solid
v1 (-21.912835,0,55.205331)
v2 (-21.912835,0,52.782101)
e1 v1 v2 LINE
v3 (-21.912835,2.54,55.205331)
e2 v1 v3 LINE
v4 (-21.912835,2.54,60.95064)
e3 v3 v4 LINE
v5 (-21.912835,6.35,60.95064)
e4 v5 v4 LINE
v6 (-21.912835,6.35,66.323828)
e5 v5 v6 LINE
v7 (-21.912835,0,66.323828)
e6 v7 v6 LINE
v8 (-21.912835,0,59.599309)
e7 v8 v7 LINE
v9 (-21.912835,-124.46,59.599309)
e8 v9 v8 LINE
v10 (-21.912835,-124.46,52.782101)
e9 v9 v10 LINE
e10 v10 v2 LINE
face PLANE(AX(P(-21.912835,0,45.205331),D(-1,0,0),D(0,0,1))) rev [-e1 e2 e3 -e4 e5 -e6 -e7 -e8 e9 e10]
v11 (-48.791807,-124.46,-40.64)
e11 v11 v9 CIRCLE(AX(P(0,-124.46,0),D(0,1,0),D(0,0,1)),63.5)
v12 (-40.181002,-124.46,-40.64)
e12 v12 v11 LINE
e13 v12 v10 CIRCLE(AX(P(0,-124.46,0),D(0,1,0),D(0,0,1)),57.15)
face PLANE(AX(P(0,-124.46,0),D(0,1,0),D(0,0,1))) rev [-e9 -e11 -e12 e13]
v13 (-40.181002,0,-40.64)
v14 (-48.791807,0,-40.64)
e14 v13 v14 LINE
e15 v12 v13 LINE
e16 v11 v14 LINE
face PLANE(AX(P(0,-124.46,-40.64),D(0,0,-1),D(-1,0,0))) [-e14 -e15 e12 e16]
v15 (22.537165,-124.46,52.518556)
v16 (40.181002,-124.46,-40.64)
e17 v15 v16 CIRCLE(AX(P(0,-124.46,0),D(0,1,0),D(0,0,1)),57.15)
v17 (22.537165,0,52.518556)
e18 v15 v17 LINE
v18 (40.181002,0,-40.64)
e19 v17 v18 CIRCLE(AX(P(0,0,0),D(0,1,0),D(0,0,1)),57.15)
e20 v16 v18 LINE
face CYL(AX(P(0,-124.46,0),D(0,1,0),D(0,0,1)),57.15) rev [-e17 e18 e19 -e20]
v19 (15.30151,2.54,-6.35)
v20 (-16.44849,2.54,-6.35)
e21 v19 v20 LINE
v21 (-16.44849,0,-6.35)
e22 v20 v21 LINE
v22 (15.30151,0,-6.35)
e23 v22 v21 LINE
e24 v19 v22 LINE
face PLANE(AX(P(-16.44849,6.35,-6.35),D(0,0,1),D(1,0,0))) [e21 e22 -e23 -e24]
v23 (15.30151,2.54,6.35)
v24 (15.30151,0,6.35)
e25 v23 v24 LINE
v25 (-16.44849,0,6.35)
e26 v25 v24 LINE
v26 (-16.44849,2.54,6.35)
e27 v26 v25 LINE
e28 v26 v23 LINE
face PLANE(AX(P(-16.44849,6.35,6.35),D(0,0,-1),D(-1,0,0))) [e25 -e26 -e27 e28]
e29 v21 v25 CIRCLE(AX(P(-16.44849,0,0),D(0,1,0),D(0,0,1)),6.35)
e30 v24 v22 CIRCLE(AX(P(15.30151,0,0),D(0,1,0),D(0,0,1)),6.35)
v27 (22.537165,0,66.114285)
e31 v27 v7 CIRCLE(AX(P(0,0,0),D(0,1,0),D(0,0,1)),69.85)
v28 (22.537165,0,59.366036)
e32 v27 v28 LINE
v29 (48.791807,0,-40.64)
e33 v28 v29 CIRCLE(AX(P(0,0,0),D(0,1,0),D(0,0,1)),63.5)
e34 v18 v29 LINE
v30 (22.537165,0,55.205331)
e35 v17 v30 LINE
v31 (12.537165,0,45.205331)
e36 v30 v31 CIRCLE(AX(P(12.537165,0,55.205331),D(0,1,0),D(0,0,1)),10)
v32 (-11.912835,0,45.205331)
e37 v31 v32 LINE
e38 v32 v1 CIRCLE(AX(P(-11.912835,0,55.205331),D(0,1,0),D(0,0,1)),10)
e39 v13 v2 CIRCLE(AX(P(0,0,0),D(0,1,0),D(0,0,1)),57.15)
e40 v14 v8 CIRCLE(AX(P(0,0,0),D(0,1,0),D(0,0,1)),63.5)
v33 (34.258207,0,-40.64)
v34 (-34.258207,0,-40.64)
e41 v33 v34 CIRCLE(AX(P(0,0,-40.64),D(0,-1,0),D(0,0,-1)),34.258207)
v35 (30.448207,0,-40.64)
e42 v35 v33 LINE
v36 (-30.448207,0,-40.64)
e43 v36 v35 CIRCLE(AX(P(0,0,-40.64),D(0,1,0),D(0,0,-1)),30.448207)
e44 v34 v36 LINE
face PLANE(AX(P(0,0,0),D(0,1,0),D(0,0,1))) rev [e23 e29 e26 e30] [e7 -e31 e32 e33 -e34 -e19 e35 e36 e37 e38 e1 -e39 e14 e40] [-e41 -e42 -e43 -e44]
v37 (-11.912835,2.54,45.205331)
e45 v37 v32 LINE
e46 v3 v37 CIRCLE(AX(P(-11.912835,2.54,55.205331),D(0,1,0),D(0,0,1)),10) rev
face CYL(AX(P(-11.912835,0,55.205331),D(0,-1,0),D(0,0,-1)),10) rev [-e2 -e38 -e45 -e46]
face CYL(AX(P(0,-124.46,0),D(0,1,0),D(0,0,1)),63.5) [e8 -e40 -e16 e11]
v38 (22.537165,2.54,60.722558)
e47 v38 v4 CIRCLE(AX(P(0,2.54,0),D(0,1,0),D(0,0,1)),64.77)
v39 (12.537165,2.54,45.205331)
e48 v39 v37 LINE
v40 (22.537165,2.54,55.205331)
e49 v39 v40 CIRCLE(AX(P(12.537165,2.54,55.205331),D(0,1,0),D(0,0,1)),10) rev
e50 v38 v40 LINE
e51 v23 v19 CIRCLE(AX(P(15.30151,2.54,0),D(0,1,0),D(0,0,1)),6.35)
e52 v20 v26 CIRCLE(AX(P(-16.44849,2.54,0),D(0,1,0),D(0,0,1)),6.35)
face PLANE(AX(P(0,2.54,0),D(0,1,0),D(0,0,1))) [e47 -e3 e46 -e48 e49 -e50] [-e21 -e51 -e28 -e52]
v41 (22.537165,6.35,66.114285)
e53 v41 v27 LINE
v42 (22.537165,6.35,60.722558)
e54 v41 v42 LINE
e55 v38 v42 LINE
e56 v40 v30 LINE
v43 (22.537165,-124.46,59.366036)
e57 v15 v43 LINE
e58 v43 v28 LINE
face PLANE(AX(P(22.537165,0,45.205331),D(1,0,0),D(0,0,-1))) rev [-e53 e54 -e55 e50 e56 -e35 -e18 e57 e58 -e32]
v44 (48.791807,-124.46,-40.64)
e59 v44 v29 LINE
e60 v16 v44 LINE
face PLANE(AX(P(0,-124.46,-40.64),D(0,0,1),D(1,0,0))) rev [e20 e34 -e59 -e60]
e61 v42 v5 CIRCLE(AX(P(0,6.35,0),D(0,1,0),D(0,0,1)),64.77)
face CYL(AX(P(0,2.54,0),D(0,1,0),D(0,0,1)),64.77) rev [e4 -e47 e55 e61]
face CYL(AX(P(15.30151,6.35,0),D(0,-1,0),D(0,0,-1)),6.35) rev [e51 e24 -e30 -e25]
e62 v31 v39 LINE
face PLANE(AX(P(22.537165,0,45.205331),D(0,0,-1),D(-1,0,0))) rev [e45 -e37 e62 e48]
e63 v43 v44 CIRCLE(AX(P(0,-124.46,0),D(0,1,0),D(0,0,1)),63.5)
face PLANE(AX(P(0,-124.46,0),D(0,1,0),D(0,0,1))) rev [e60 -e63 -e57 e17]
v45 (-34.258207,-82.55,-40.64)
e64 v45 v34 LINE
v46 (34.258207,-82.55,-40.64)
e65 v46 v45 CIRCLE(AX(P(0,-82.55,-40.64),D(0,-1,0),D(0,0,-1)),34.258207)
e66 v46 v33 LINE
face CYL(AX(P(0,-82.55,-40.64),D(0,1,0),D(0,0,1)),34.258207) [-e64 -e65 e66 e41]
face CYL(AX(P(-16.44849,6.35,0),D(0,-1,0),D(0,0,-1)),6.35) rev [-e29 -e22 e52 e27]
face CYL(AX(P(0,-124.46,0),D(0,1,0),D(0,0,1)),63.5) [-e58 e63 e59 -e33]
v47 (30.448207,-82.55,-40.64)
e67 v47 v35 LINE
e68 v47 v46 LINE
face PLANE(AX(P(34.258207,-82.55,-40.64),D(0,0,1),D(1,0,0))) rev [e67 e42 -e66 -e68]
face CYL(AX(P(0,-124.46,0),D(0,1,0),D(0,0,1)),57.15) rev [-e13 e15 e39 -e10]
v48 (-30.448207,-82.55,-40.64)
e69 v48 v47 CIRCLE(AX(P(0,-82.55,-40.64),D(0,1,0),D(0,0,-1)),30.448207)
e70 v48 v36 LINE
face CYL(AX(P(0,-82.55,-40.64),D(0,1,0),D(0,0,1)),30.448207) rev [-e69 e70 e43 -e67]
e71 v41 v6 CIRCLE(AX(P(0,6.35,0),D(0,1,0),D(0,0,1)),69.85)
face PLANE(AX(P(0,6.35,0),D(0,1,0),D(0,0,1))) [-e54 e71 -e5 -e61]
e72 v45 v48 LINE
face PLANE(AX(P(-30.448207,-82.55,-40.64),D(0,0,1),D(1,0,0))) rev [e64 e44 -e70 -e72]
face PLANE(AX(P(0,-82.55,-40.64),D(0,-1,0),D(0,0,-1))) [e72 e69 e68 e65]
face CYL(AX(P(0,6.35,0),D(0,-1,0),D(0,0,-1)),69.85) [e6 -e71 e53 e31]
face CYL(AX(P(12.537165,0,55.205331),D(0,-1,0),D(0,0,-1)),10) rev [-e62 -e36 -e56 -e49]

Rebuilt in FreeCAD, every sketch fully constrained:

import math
import FreeCAD as App
import Part
import Sketcher

V = App.Vector
Q = App.Units.Quantity


def edges_at(feature, points):
    """Names of the edges that pass closest to the given points."""
    edges = feature.Shape.Edges
    near = lambda p: min(range(len(edges)), key=lambda i: edges[i].distToShape(Part.Vertex(*p))[0])
    return sorted({f"Edge{near(p) + 1}" for p in points})


def add_polygon(sketch, points):
    """Adds a closed chain of lines whose ends are joined by coincident constraints."""
    first, n = sketch.GeometryCount, len(points)
    for a, b in zip(points, points[1:] + points[:1]):
        sketch.addGeometry(Part.LineSegment(App.Vector(*a, 0), App.Vector(*b, 0)), False)
    for i in range(n):
        sketch.addConstraint(Sketcher.Constraint("Coincident", first + i, 2, first + (i + 1) % n, 1))

doc = App.newDocument("Part")
body = doc.addObject("PartDesign::Body", "Body")

# Sketch on XZ plane
sketch1 = doc.addObject("Sketcher::SketchObject", "Sketch")
body.addObject(sketch1)
sketch1.AttachmentSupport = (doc.XZ_Plane, [""])
sketch1.MapMode = "FlatFace"
sketch1.addGeometry(Part.Circle(V(0, 0, 0), V(0, 0, 1), 70), False)
sketch1.addGeometry(Part.ArcOfCircle(Part.Circle(V(-16, 0, 0), V(0, 0, 1), 6), math.radians(90), math.radians(270)), False)
sketch1.addGeometry(Part.LineSegment(V(-16, -6, 0), V(15, -6, 0)), False)
sketch1.addGeometry(Part.ArcOfCircle(Part.Circle(V(15, 0, 0), V(0, 0, 1), 6), math.radians(-90), math.radians(90)), False)
sketch1.addGeometry(Part.LineSegment(V(15, 6, 0), V(-16, 6, 0)), False)
sketch1.addConstraint(Sketcher.Constraint("Tangent", 1, 2, 2, 1))
sketch1.addConstraint(Sketcher.Constraint("Tangent", 2, 2, 3, 1))
sketch1.addConstraint(Sketcher.Constraint("Tangent", 3, 2, 4, 1))
sketch1.addConstraint(Sketcher.Constraint("Tangent", 4, 2, 1, 1))
sketch1.addConstraint(Sketcher.Constraint("Horizontal", 2))
sketch1.addConstraint(Sketcher.Constraint("Horizontal", 4))
sketch1.addConstraint(Sketcher.Constraint("Coincident", 0, 3, -1, 1))
sketch1.addConstraint(Sketcher.Constraint("PointOnObject", 1, 3, -1))
sketch1.addConstraint(Sketcher.Constraint("Diameter", 0, Q("5.5 in")))
sketch1.addConstraint(Sketcher.Constraint("Radius", 1, Q("0.25 in")))
sketch1.addConstraint(Sketcher.Constraint("DistanceX", 2, 1, 2, 2, Q("1.25 in")))
sketch1.addConstraint(Sketcher.Constraint("DistanceX", 1, 3, -1, 1, Q("16.44849 mm")))
pad1 = doc.addObject("PartDesign::Pad", "Pad")
body.addObject(pad1)
pad1.Profile = sketch1
pad1.Length = Q("0.25 in")
pad1.Reversed = True

# Sketch on XZ plane
sketch2 = doc.addObject("Sketcher::SketchObject", "Sketch001")
body.addObject(sketch2)
sketch2.AttachmentSupport = (doc.XZ_Plane, [""])
sketch2.MapMode = "FlatFace"
sketch2.AttachmentOffset = App.Placement(V(0, 0, -0.25 * 25.4), App.Rotation())
sketch2.addGeometry(Part.Circle(V(0, 0, 0), V(0, 0, 1), 65), False)
sketch2.addConstraint(Sketcher.Constraint("Coincident", 0, 3, -1, 1))
sketch2.addConstraint(Sketcher.Constraint("Diameter", 0, Q("5.1 in")))
pocket1 = doc.addObject("PartDesign::Pocket", "Pocket")
body.addObject(pocket1)
pocket1.Profile = sketch2
pocket1.Length = Q("0.15 in")
pocket1.Reversed = True

# Sketch on XZ plane
sketch3 = doc.addObject("Sketcher::SketchObject", "Sketch002")
body.addObject(sketch3)
sketch3.AttachmentSupport = (doc.XZ_Plane, [""])
sketch3.MapMode = "FlatFace"
sketch3.AttachmentOffset = App.Placement(V(0, 0, -0.25 * 25.4), App.Rotation())
add_polygon(sketch3, [(-22, 45), (-22, 71), (23, 71), (23, 45)])  # lines 0-3
sketch3.addConstraint(Sketcher.Constraint("Vertical", 0))
sketch3.addConstraint(Sketcher.Constraint("Horizontal", 1))
sketch3.addConstraint(Sketcher.Constraint("Vertical", 2))
sketch3.addConstraint(Sketcher.Constraint("Horizontal", 3))
sketch3.addConstraint(Sketcher.Constraint("DistanceY", 0, 1, 0, 2, Q("1 in")))
sketch3.addConstraint(Sketcher.Constraint("DistanceX", 1, 1, 1, 2, Q("1.75 in")))
sketch3.addConstraint(Sketcher.Constraint("DistanceY", -1, 1, 0, 2, Q("70.605331 mm")))
sketch3.addConstraint(Sketcher.Constraint("DistanceX", 0, 2, -1, 1, Q("21.912835 mm")))
pocket2 = doc.addObject("PartDesign::Pocket", "Pocket001")
body.addObject(pocket2)
pocket2.Profile = sketch3
pocket2.Type = "ThroughAll"
pocket2.Reversed = True
doc.recompute()

fillet = doc.addObject("PartDesign::Fillet", "Fillet")
body.addObject(fillet)
fillet.Base = (pocket2, edges_at(pocket2, [(22.537, 1.27, 45.205), (-21.913, 1.27, 45.205)]))
fillet.Radius = 10

# Sketch on XZ plane
sketch4 = doc.addObject("Sketcher::SketchObject", "Sketch003")
body.addObject(sketch4)
sketch4.AttachmentSupport = (doc.XZ_Plane, [""])
sketch4.MapMode = "FlatFace"
sketch4.addGeometry(Part.LineSegment(V(30.4, -40.6, 0), V(34.3, -40.6, 0)), False)
sketch4.addGeometry(Part.ArcOfCircle(Part.Circle(V(0, -40.6, 0), V(0, 0, 1), 34.3), math.radians(0), math.radians(180)), False)
sketch4.addGeometry(Part.LineSegment(V(-34.3, -40.6, 0), V(-30.4, -40.6, 0)), False)
sketch4.addGeometry(Part.ArcOfCircle(Part.Circle(V(0, -40.6, 0), V(0, 0, 1), 30.4), math.radians(0), math.radians(180)), False)
sketch4.addConstraint(Sketcher.Constraint("Coincident", 0, 2, 1, 1))
sketch4.addConstraint(Sketcher.Constraint("Coincident", 1, 2, 2, 1))
sketch4.addConstraint(Sketcher.Constraint("Coincident", 2, 2, 3, 2))
sketch4.addConstraint(Sketcher.Constraint("Coincident", 3, 1, 0, 1))
sketch4.addConstraint(Sketcher.Constraint("Horizontal", 0))
sketch4.addConstraint(Sketcher.Constraint("Horizontal", 2))
sketch4.addConstraint(Sketcher.Constraint("Coincident", 3, 3, 1, 3))
sketch4.addConstraint(Sketcher.Constraint("Symmetric", 0, 2, 1, 2, -2))
sketch4.addConstraint(Sketcher.Constraint("Horizontal", 3, 3, 0, 2))
sketch4.addConstraint(Sketcher.Constraint("DistanceX", 0, 1, 0, 2, Q("0.15 in")))
sketch4.addConstraint(Sketcher.Constraint("DistanceY", 1, 3, -1, 1, Q("1.6 in")))
sketch4.addConstraint(Sketcher.Constraint("Radius", 1, Q("34.258207 mm")))
pad2 = doc.addObject("PartDesign::Pad", "Pad001")
body.addObject(pad2)
pad2.Profile = sketch4
pad2.Length = Q("3.25 in")

# Sketch on XZ plane
sketch5 = doc.addObject("Sketcher::SketchObject", "Sketch004")
body.addObject(sketch5)
sketch5.AttachmentSupport = (doc.XZ_Plane, [""])
sketch5.MapMode = "FlatFace"
sketch5.AttachmentOffset = App.Placement(V(0, 0, -0.1 * 25.4), App.Rotation())
sketch5.addGeometry(Part.ArcOfCircle(Part.Circle(V(0, 0, 0), V(0, 0, 1), 57), math.radians(113), math.radians(225)), False)
sketch5.addGeometry(Part.LineSegment(V(-40, -41, 0), V(-49, -41, 0)), False)
sketch5.addGeometry(Part.ArcOfCircle(Part.Circle(V(0, 0, 0), V(0, 0, 1), 63), math.radians(110), math.radians(220)), False)
sketch5.addGeometry(Part.LineSegment(V(-22, 60, 0), V(-22, 53, 0)), False)
sketch5.addGeometry(Part.LineSegment(V(49, -41, 0), V(40, -41, 0)), False)
sketch5.addGeometry(Part.ArcOfCircle(Part.Circle(V(0, 0, 0), V(0, 0, 1), 57), math.radians(-45), math.radians(67)), False)
sketch5.addGeometry(Part.LineSegment(V(23, 53, 0), V(23, 59, 0)), False)
sketch5.addGeometry(Part.ArcOfCircle(Part.Circle(V(0, 0, 0), V(0, 0, 1), 64), math.radians(-40), math.radians(69)), False)
sketch5.addConstraint(Sketcher.Constraint("Coincident", 0, 2, 1, 1))
sketch5.addConstraint(Sketcher.Constraint("Coincident", 1, 2, 2, 2))
sketch5.addConstraint(Sketcher.Constraint("Coincident", 2, 1, 3, 1))
sketch5.addConstraint(Sketcher.Constraint("Coincident", 3, 2, 0, 1))
sketch5.addConstraint(Sketcher.Constraint("Coincident", 4, 2, 5, 1))
sketch5.addConstraint(Sketcher.Constraint("Coincident", 5, 2, 6, 1))
sketch5.addConstraint(Sketcher.Constraint("Coincident", 6, 2, 7, 2))
sketch5.addConstraint(Sketcher.Constraint("Coincident", 7, 1, 4, 1))
sketch5.addConstraint(Sketcher.Constraint("Horizontal", 1))
sketch5.addConstraint(Sketcher.Constraint("Vertical", 3))
sketch5.addConstraint(Sketcher.Constraint("Horizontal", 4))
sketch5.addConstraint(Sketcher.Constraint("Vertical", 6))
sketch5.addConstraint(Sketcher.Constraint("Coincident", 0, 3, -1, 1))
sketch5.addConstraint(Sketcher.Constraint("Coincident", 2, 3, -1, 1))
sketch5.addConstraint(Sketcher.Constraint("Coincident", 5, 3, -1, 1))
sketch5.addConstraint(Sketcher.Constraint("Coincident", 7, 3, -1, 1))
sketch5.addConstraint(Sketcher.Constraint("Equal", 0, 5))
sketch5.addConstraint(Sketcher.Constraint("Equal", 2, 7))
sketch5.addConstraint(Sketcher.Constraint("Horizontal", 1, 2, 4, 2))
sketch5.addConstraint(Sketcher.Constraint("Radius", 2, Q("2.5 in")))
sketch5.addConstraint(Sketcher.Constraint("Radius", 0, Q("2.25 in")))
sketch5.addConstraint(Sketcher.Constraint("DistanceY", 0, 2, -1, 1, Q("1.6 in")))
sketch5.addConstraint(Sketcher.Constraint("DistanceX", 3, 2, 5, 2, Q("1.75 in")))
sketch5.addConstraint(Sketcher.Constraint("DistanceY", 3, 2, 3, 1, Q("6.817208 mm")))
pad3 = doc.addObject("PartDesign::Pad", "Pad002")
body.addObject(pad3)
pad3.Profile = sketch5
pad3.Length = Q("5 in")

doc.recompute()
